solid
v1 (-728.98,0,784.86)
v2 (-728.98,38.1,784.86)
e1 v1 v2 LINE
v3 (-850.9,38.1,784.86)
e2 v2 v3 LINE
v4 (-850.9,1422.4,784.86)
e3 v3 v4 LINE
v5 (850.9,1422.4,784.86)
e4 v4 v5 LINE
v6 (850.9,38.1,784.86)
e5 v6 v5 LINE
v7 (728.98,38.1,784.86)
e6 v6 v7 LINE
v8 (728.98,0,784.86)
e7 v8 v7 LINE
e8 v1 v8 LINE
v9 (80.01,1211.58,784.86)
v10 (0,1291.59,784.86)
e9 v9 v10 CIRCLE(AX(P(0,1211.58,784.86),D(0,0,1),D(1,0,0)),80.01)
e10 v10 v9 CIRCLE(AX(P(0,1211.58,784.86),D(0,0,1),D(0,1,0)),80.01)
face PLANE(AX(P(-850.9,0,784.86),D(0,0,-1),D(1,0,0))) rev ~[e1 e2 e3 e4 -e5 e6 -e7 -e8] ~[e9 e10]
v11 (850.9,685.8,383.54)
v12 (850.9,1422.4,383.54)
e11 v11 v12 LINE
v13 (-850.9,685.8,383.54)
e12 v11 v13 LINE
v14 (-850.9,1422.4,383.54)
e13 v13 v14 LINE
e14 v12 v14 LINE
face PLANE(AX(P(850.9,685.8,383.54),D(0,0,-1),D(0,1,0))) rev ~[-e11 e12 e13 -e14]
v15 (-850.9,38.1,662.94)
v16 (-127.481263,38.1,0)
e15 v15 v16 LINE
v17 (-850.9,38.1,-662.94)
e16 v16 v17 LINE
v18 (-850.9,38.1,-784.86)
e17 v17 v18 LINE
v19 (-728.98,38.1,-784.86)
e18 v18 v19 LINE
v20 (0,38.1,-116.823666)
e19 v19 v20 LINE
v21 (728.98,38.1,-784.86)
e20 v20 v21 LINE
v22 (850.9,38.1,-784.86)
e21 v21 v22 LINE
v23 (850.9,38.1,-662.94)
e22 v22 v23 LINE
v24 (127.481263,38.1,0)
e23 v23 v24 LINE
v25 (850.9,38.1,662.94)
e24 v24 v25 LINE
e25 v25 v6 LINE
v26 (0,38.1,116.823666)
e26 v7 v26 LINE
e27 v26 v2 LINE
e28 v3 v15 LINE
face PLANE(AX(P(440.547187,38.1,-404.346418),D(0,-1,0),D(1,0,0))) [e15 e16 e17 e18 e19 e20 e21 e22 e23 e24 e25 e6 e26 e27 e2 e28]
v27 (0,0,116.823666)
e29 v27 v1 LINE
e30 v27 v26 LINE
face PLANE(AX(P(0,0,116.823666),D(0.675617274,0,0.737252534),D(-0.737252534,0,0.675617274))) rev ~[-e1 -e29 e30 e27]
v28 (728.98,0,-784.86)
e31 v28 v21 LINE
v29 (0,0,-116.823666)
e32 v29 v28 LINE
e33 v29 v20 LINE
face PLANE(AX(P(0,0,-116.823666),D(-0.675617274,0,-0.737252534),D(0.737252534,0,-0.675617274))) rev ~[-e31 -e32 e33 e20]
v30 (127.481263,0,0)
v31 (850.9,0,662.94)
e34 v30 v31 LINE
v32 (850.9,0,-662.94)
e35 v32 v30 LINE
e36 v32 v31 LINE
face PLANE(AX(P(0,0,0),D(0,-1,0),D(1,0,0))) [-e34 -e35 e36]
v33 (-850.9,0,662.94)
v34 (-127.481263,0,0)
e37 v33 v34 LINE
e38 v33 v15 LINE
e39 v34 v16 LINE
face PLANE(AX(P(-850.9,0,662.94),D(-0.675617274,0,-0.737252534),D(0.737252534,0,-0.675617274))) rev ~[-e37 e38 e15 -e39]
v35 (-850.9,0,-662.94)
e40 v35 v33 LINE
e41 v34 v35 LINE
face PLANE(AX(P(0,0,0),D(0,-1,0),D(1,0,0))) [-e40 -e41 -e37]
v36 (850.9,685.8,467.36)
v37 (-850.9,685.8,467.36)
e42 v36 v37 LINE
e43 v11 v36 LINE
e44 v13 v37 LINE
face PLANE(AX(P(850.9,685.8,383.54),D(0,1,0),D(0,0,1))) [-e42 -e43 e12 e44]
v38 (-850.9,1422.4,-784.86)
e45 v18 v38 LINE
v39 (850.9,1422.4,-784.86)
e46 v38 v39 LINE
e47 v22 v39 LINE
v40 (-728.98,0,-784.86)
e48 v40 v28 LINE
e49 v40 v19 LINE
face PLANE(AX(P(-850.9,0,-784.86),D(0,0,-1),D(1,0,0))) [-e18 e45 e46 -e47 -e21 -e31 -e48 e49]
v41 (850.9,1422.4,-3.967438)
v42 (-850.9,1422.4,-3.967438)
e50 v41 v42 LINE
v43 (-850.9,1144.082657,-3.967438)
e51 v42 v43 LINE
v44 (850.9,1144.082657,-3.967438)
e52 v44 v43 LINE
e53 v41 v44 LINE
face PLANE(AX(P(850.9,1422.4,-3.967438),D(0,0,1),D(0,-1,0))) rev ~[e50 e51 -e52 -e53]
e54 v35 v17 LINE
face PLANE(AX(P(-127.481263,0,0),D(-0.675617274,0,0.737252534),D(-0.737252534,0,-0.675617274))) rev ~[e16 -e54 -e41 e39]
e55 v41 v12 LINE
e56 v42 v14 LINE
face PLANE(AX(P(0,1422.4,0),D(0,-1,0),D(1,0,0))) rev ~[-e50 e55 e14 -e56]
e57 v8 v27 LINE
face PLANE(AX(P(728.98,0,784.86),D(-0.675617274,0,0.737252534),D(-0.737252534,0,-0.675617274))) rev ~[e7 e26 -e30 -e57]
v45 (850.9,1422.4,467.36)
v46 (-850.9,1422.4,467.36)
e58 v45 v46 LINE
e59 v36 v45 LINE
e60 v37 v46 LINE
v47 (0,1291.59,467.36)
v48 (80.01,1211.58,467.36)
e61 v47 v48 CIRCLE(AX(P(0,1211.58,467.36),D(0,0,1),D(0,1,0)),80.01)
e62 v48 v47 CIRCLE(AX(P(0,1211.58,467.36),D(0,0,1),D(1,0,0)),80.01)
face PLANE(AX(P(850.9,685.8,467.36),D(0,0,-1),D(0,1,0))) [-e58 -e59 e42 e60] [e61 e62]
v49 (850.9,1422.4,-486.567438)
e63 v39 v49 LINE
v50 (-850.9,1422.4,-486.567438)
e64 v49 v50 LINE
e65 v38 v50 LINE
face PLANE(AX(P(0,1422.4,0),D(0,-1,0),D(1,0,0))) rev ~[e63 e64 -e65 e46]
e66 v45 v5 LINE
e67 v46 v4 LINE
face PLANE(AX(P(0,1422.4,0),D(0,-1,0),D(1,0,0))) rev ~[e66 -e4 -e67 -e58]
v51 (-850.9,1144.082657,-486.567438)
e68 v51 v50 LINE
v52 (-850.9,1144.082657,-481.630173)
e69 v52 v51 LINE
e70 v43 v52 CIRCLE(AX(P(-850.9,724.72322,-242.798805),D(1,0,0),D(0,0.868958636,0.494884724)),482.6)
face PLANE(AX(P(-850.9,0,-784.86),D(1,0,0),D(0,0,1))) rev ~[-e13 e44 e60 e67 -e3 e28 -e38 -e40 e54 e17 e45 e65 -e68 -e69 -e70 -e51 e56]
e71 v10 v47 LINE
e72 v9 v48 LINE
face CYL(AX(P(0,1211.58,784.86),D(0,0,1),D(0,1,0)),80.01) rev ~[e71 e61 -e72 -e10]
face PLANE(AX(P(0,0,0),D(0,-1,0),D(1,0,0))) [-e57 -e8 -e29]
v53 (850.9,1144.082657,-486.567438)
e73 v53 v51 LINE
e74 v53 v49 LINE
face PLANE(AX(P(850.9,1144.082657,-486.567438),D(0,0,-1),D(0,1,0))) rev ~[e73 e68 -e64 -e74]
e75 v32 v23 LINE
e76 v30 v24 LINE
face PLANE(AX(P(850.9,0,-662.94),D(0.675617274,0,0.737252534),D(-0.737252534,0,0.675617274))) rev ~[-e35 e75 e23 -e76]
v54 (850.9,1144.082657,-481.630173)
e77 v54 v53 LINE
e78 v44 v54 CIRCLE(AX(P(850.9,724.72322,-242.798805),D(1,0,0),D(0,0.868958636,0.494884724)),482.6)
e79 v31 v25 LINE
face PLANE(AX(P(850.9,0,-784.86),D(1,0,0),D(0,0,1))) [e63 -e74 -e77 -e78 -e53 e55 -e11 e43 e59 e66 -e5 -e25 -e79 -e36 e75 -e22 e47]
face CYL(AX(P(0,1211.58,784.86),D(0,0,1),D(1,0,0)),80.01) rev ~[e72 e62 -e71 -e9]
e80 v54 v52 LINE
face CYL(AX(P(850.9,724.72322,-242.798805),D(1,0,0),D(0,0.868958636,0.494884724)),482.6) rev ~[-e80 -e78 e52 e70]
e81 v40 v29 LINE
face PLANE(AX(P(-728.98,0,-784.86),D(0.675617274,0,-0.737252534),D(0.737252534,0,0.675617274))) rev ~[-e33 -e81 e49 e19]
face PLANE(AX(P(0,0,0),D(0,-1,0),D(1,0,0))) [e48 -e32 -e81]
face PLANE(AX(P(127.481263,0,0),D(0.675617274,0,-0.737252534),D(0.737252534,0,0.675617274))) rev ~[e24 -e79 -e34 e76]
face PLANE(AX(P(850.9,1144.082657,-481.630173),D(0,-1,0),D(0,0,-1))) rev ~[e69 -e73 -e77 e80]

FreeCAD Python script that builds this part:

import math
import FreeCAD as App
import Part
import Sketcher
Q = App.Units.Quantity


def add_polygon(sketch, points):
    """Adds a closed chain of lines whose ends are joined by coincident constraints."""
    first, n = sketch.GeometryCount, len(points)
    for a, b in zip(points, points[1:] + points[:1]):
        sketch.addGeometry(Part.LineSegment(App.Vector(*a, 0), App.Vector(*b, 0)), False)
    for i in range(n):
        sketch.addConstraint(Sketcher.Constraint("Coincident", first + i, 2, first + (i + 1) % n, 1))

doc = App.newDocument("Part")
body = doc.addObject("PartDesign::Body", "Body")

# Sketch on XZ plane
sketch1 = body.newObject("Sketcher::SketchObject", "Sketch")
sketch1.AttachmentSupport = (doc.getObject("XZ_Plane"), [""])
sketch1.MapMode = "FlatFace"
add_polygon(sketch1, [(-850.9, 784.86), (-850.9, -784.86), (850.9, -784.86), (850.9, 784.86)])  # lines 0-3
sketch1.addConstraint([
    Sketcher.Constraint("Vertical", 0),
    Sketcher.Constraint("Horizontal", 1),
    Sketcher.Constraint("Vertical", 2),
    Sketcher.Constraint("Horizontal", 3),
    Sketcher.Constraint("Symmetric", 0, 2, 2, 2, -1, 1),
    Sketcher.Constraint("DistanceX", 1, 1, 1, 2, Q("67 in")),
    Sketcher.Constraint("DistanceY", 0, 2, 0, 1, Q("61.8 in")),
])
pad1 = body.newObject("PartDesign::Pad", "Pad")
pad1.Profile = sketch1
pad1.Length = Q("56 in")
pad1.Reversed = True

# Sketch on XZ plane
sketch2 = body.newObject("Sketcher::SketchObject", "Sketch001")
sketch2.AttachmentSupport = (doc.getObject("XZ_Plane"), [""])
sketch2.MapMode = "FlatFace"
add_polygon(sketch2, [(728.98, -784.86), (850.9, -784.86), (850.9, -662.94), (127.481263, 0), (850.9, 662.94), (850.9, 784.86), (728.98, 784.86), (0, 116.823666), (-728.98, 784.86), (-850.9, 784.86), (-850.9, 662.94), (-127.481263, 0), (-850.9, -662.94), (-850.9, -784.86), (-728.98, -784.86), (0, -116.823666)])  # lines 0-15
sketch2.addConstraint([
    Sketcher.Constraint("Horizontal", 0),
    Sketcher.Constraint("Vertical", 1),
    Sketcher.Constraint("Vertical", 4),
    Sketcher.Constraint("Horizontal", 5),
    Sketcher.Constraint("Horizontal", 8),
    Sketcher.Constraint("Vertical", 9),
    Sketcher.Constraint("Vertical", 12),
    Sketcher.Constraint("Horizontal", 13),
    Sketcher.Constraint("Symmetric", 0, 2, 8, 2, -1, 1),
    Sketcher.Constraint("Symmetric", 2, 2, 10, 2, -1, 1),
    Sketcher.Constraint("Symmetric", 3, 2, 11, 2, -1, 1),
    Sketcher.Constraint("Symmetric", 5, 2, 13, 2, -1, 1),
    Sketcher.Constraint("Symmetric", 6, 2, 14, 2, -1, 1),
    Sketcher.Constraint("Symmetric", 5, 2, 7, 2, -2),
    Sketcher.Constraint("Symmetric", 3, 2, 9, 2, -2),
    Sketcher.Constraint("PointOnObject", 2, 2, -1),
    Sketcher.Constraint("PointOnObject", 6, 2, -2),
    Sketcher.Constraint("Parallel", 3, 6),
    Sketcher.Constraint("Parallel", 2, 7),
    Sketcher.Constraint("Parallel", 10, 15),
    Sketcher.Constraint("Equal", 13, 1),
    Sketcher.Constraint("DistanceX", 0, 1, 0, 2, Q("4.8 in")),
    Sketcher.Constraint("DistanceY", 0, 2, 3, 2, Q("57 in")),
    Sketcher.Constraint("DistanceX", 8, 2, 4, 2, Q("67 in")),
    Sketcher.Constraint("Distance", 6, Q("988.77924 mm")),
])
pocket1 = body.newObject("PartDesign::Pocket", "Pocket")
pocket1.Profile = sketch2
pocket1.Length = Q("1.5 in")

# Sketch on XY plane
sketch3 = body.newObject("Sketcher::SketchObject", "Sketch002")
sketch3.AttachmentSupport = (doc.getObject("XY_Plane"), [""])
sketch3.MapMode = "FlatFace"
sketch3.AttachmentOffset = App.Placement(App.Vector(0, 0, 30.9 * 25.4), App.Rotation())
sketch3.addGeometry([
    Part.ArcOfCircle(Part.Circle(App.Vector(0, 1211.58, 0), App.Vector(0, 0, 1), 80.01), math.radians(90), math.radians(360)),
    Part.ArcOfCircle(Part.Circle(App.Vector(0, 1211.58, 0), App.Vector(0, 0, 1), 80.01), math.radians(0), math.radians(90)),
], False)
sketch3.addConstraint([
    Sketcher.Constraint("Tangent", 0, 1, 1, 2),
    Sketcher.Constraint("Coincident", 1, 1, 0, 2),
    Sketcher.Constraint("PointOnObject", 0, 3, -2),
    Sketcher.Constraint("PointOnObject", 0, 1, -2),
    Sketcher.Constraint("Horizontal", 0, 3, 1, 1),
    Sketcher.Constraint("Radius", 0, Q("3.15 in")),
    Sketcher.Constraint("DistanceY", -1, 1, 0, 3, Q("47.7 in")),
])
pocket2 = body.newObject("PartDesign::Pocket", "Pocket001")
pocket2.Profile = sketch3
pocket2.Length = Q("12.5 in")

# Sketch on YZ plane
sketch4 = body.newObject("Sketcher::SketchObject", "Sketch003")
sketch4.AttachmentSupport = (doc.getObject("YZ_Plane"), [""])
sketch4.MapMode = "FlatFace"
sketch4.AttachmentOffset = App.Placement(App.Vector(0, 0, 33.5 * 25.4), App.Rotation())
sketch4.addGeometry([
    Part.ArcOfCircle(Part.Circle(App.Vector(724.72322, -242.798805, 0), App.Vector(0, 0, 1), 482.6), math.radians(29.662149), math.radians(330.337851)),  # 0
    Part.LineSegment(App.Vector(1144.082657, -481.630173, 0), App.Vector(1144.082657, -486.567438, 0)),  # 1
    Part.LineSegment(App.Vector(1144.082657, -486.567438, 0), App.Vector(1422.4, -486.567438, 0)),  # 2
    Part.LineSegment(App.Vector(1422.4, -486.567438, 0), App.Vector(1422.4, -3.967438, 0)),  # 3
    Part.LineSegment(App.Vector(1422.4, -3.967438, 0), App.Vector(1144.082657, -3.967438, 0)),  # 4
], False)
sketch4.addConstraint([
    Sketcher.Constraint("Coincident", 0, 2, 1, 1),
    Sketcher.Constraint("Coincident", 1, 2, 2, 1),
    Sketcher.Constraint("Coincident", 2, 2, 3, 1),
    Sketcher.Constraint("Coincident", 3, 2, 4, 1),
    Sketcher.Constraint("Coincident", 4, 2, 0, 1),
    Sketcher.Constraint("Vertical", 1),
    Sketcher.Constraint("Horizontal", 2),
    Sketcher.Constraint("Vertical", 3),
    Sketcher.Constraint("Horizontal", 4),
    Sketcher.Constraint("Vertical", 1, 2, 4, 2),
    Sketcher.Constraint("Radius", 0, Q("19 in")),
    Sketcher.Constraint("DistanceY", 3, 1, 3, 2, Q("19 in")),
    Sketcher.Constraint("DistanceX", -1, 1, 2, 2, Q("56 in")),
    Sketcher.Constraint("DistanceX", 2, 1, 2, 2, Q("278.317343 mm")),
    Sketcher.Constraint("DistanceY", 1, 2, 1, 1, Q("4.937265 mm")),
    Sketcher.Constraint("DistanceY", 0, 3, -1, 1, Q("242.798805 mm")),
])
pocket3 = body.newObject("PartDesign::Pocket", "Pocket002")
pocket3.Profile = sketch4
pocket3.Length = Q("83.1 in")

# Sketch on YZ plane
sketch5 = body.newObject("Sketcher::SketchObject", "Sketch004")
sketch5.AttachmentSupport = (doc.getObject("YZ_Plane"), [""])
sketch5.MapMode = "FlatFace"
sketch5.AttachmentOffset = App.Placement(App.Vector(0, 0, 33.5 * 25.4), App.Rotation())
add_polygon(sketch5, [(685.8, 467.36), (685.8, 383.54), (1422.4, 383.54), (1422.4, 467.36)])  # lines 0-3
sketch5.addConstraint([
    Sketcher.Constraint("Vertical", 0),
    Sketcher.Constraint("Horizontal", 1),
    Sketcher.Constraint("Vertical", 2),
    Sketcher.Constraint("Horizontal", 3),
    Sketcher.Constraint("DistanceX", 1, 1, 1, 2, Q("29 in")),
    Sketcher.Constraint("DistanceY", 0, 2, 0, 1, Q("3.3 in")),
    Sketcher.Constraint("DistanceX", -1, 1, 0, 2, Q("27 in")),
    Sketcher.Constraint("DistanceY", -1, 1, 0, 2, Q("15.1 in")),
])
pocket4 = body.newObject("PartDesign::Pocket", "Pocket003")
pocket4.Profile = sketch5
pocket4.Length = Q("126.6 in")

doc.recompute()
